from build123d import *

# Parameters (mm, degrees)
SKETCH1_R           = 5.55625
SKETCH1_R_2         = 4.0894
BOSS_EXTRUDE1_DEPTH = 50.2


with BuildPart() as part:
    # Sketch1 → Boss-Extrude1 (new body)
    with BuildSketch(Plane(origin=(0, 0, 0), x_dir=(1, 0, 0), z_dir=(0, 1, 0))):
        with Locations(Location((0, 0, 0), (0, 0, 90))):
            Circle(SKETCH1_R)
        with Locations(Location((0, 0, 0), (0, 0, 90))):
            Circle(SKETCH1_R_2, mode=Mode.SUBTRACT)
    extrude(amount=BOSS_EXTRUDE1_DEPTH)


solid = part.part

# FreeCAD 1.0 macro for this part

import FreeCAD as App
import Part
import Sketcher
from FreeCAD import Vector
Q = App.Units.Quantity

doc = App.newDocument("Part")
params = doc.addObject("Spreadsheet::Sheet", "Params")
for row, (alias, value) in enumerate([
    ("sketch1_diameter", "0.4375 in"),
    ("sketch1_diameter2", "0.322 in"),
    ("pad1_length", "50.2 mm"),
], start=1):
    params.set(f"A{row}", alias)
    params.set(f"B{row}", "=" + value)
    params.setAlias(f"B{row}", alias)

body = doc.addObject("PartDesign::Body", "Body")

# Sketch on XZ plane
sketch1 = body.newObject("Sketcher::SketchObject", "Sketch")
sketch1.AttachmentSupport = (doc.getObject("XZ_Plane"), [""])
sketch1.MapMode = "FlatFace"
sketch1.addGeometry([
    Part.Circle(Vector(0, 0, 0), Vector(0, 0, 1), 5.55625),
    Part.Circle(Vector(0, 0, 0), Vector(0, 0, 1), 4.0894),
], False)
sketch1.addConstraint([
    Sketcher.Constraint("Coincident", 0, 3, -1, 1),
    Sketcher.Constraint("Coincident", 1, 3, -1, 1),
    Sketcher.Constraint("Diameter", 0, Q("0.4375 in")),
    Sketcher.Constraint("Diameter", 1, Q("0.322 in")),
])
sketch1.setExpression("Constraints[2]", "Params.sketch1_diameter")
sketch1.setExpression("Constraints[3]", "Params.sketch1_diameter2")
pad1 = body.newObject("PartDesign::Pad", "Pad")
pad1.Profile = sketch1
pad1.setExpression("Length", "Params.pad1_length")
pad1.Reversed = True

doc.recompute()
